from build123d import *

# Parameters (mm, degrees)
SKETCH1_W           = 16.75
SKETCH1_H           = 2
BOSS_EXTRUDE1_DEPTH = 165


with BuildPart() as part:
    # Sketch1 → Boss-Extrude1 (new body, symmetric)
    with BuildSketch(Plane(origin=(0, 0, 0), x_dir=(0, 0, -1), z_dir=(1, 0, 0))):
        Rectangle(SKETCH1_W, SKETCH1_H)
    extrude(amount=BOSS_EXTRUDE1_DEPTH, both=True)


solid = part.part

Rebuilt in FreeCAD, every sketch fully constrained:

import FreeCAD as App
import Part
import Sketcher

V = App.Vector
Q = App.Units.Quantity


def add_polygon(sketch, points):
    """Adds a closed chain of lines whose ends are joined by coincident constraints."""
    first, n = sketch.GeometryCount, len(points)
    for a, b in zip(points, points[1:] + points[:1]):
        sketch.addGeometry(Part.LineSegment(App.Vector(*a, 0), App.Vector(*b, 0)), False)
    for i in range(n):
        sketch.addConstraint(Sketcher.Constraint("Coincident", first + i, 2, first + (i + 1) % n, 1))

doc = App.newDocument("Part")
body = doc.addObject("PartDesign::Body", "Body")

# Sketch on YZ plane
sketch1 = body.newObject("Sketcher::SketchObject", "Sketch")
sketch1.AttachmentSupport = (doc.getObject("YZ_Plane"), [""])
sketch1.MapMode = "FlatFace"
add_polygon(sketch1, [(1, 8.375), (-1, 8.375), (-1, -8.375), (1, -8.375)])  # lines 0-3
sketch1.addConstraint([
    Sketcher.Constraint("Horizontal", 0),
    Sketcher.Constraint("Vertical", 1),
    Sketcher.Constraint("Horizontal", 2),
    Sketcher.Constraint("Vertical", 3),
    Sketcher.Constraint("Symmetric", 0, 2, 2, 2, -1, 1),
    Sketcher.Constraint("DistanceX", 0, 2, 0, 1, Q("2 mm")),
    Sketcher.Constraint("DistanceY", 1, 2, 1, 1, Q("16.75 mm")),
])
pad1 = body.newObject("PartDesign::Pad", "Pad")
pad1.Profile = sketch1
pad1.Length = 330
pad1.Midplane = True

doc.recompute()
